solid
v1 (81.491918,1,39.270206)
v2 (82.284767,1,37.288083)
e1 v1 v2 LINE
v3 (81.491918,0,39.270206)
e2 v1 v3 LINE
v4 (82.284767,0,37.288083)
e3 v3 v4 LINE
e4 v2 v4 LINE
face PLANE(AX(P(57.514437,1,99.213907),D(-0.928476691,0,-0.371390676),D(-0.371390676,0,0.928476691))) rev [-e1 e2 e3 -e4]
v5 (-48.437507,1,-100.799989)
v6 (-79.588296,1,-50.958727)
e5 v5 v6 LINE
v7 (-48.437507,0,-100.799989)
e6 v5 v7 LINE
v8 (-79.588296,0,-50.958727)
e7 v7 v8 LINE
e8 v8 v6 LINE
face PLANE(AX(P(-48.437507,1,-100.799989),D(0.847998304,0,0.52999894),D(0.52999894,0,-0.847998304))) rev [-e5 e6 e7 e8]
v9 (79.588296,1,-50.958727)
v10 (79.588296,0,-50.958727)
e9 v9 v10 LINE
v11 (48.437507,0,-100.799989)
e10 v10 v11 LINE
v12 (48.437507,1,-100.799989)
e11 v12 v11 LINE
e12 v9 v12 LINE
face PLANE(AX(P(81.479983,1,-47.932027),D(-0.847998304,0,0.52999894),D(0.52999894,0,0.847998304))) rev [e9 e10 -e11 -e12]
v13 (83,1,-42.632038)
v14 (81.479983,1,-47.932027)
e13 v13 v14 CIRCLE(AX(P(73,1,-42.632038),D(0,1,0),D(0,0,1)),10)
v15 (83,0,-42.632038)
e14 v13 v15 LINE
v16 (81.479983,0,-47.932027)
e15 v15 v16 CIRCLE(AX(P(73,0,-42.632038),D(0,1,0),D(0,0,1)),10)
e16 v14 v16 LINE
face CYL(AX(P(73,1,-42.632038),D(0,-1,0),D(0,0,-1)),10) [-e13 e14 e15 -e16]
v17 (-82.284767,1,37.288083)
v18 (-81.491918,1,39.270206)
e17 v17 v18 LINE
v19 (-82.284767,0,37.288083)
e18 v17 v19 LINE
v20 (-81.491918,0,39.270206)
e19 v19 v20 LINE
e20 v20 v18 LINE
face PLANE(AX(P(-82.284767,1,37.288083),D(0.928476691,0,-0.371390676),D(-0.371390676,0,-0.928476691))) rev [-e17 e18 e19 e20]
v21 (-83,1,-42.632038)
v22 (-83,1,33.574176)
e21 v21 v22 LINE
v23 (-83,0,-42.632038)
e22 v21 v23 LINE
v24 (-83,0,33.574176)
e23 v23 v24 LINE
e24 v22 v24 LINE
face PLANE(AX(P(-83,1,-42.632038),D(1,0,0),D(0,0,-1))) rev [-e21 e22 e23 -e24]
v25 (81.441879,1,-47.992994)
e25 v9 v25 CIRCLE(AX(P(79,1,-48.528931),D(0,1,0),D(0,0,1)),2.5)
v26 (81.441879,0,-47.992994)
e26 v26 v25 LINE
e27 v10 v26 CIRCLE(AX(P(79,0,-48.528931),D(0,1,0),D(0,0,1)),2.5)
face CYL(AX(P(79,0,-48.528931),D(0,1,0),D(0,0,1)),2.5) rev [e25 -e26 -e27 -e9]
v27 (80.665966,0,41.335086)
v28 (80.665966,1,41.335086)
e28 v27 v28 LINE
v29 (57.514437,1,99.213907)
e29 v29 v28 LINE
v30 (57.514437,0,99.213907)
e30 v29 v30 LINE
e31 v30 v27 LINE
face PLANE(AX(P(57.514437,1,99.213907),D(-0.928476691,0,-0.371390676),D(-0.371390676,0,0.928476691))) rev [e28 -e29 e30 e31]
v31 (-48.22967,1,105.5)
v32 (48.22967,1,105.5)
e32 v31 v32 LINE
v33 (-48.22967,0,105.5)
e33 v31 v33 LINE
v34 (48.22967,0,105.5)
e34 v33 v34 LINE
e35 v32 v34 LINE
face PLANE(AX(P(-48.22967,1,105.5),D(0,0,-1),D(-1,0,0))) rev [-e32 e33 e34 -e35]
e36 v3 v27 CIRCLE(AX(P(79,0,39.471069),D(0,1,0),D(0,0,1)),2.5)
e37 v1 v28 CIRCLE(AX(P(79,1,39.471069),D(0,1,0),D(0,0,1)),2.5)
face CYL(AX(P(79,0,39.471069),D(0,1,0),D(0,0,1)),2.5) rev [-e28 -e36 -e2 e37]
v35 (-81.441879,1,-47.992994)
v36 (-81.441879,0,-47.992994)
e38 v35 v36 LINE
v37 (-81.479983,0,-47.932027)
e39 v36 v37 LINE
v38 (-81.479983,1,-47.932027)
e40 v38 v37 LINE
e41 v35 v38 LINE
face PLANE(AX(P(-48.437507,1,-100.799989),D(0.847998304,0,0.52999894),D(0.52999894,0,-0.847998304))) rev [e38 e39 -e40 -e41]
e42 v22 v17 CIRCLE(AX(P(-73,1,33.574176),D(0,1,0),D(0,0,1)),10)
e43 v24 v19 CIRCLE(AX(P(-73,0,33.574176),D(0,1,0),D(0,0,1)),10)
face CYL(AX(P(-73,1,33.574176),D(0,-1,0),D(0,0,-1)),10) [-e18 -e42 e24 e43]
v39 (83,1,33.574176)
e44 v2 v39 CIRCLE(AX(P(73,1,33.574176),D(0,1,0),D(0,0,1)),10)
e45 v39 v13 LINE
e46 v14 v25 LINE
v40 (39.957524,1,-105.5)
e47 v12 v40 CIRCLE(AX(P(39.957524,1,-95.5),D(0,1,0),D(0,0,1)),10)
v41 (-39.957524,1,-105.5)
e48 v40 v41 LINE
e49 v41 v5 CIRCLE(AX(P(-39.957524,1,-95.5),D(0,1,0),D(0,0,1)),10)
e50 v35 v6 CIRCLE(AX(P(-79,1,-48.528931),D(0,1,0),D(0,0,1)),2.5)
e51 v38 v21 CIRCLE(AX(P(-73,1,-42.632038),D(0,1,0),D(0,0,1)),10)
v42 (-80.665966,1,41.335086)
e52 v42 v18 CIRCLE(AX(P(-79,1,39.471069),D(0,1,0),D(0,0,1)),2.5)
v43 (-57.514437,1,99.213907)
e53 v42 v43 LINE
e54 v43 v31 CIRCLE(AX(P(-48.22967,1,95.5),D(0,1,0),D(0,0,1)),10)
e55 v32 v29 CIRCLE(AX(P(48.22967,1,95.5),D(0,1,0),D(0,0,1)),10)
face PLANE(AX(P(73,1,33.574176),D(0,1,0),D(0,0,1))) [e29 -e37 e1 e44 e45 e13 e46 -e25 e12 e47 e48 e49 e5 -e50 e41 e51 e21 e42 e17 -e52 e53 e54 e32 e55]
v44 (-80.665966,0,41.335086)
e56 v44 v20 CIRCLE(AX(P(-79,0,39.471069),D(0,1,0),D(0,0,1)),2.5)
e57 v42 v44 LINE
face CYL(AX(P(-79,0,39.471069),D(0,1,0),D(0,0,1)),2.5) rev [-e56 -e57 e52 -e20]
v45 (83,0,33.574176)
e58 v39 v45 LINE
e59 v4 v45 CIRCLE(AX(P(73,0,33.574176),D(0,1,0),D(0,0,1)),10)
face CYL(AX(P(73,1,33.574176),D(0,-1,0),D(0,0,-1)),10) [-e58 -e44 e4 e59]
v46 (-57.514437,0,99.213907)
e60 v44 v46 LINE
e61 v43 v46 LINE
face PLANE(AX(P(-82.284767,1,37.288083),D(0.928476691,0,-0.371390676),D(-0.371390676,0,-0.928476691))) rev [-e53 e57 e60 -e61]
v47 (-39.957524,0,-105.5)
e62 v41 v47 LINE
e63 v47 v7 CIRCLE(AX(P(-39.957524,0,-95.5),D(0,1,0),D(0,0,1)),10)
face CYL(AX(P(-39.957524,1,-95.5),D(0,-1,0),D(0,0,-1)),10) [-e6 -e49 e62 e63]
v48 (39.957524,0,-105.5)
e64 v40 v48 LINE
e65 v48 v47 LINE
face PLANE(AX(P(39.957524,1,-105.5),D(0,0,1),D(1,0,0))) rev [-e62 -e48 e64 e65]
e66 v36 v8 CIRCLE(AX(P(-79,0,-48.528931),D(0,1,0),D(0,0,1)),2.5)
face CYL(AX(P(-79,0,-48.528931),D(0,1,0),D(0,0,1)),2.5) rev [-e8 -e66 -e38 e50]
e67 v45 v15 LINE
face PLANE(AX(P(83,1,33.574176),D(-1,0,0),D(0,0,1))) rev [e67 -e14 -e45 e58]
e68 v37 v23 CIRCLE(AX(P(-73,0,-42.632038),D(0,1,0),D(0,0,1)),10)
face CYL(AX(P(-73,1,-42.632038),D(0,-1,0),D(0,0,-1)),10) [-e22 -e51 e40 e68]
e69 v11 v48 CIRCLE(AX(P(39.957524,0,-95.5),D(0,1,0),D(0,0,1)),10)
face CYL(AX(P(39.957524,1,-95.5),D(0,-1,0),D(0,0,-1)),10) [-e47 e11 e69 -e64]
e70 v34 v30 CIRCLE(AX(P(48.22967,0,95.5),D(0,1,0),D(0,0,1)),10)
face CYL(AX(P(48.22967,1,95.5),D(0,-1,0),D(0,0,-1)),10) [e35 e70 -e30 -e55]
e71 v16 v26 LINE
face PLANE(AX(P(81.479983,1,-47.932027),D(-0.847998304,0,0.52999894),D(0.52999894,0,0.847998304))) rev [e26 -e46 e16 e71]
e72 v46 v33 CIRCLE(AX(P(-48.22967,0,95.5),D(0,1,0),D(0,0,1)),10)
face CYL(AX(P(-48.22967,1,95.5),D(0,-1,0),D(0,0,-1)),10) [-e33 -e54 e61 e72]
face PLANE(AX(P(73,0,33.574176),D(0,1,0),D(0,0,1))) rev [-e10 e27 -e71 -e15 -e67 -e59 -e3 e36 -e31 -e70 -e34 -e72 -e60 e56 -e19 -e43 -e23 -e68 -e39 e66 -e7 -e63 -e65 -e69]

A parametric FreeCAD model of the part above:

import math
import FreeCAD as App
import Part
import Sketcher
from FreeCAD import Vector
Q = App.Units.Quantity

doc = App.newDocument("Part")
params = doc.addObject("Spreadsheet::Sheet", "Params")
for row, (alias, value) in enumerate([
    ("sketch1_radius", "10 mm"),
    ("pad1_length", "1 mm"),
    ("sketch2_diameter", "5 mm"),
    ("pocket1_length", "1 mm"),
], start=1):
    params.set(f"A{row}", alias)
    params.set(f"B{row}", "=" + value)
    params.setAlias(f"B{row}", alias)

body = doc.addObject("PartDesign::Body", "Body")

# Sketch on XZ plane
sketch1 = body.newObject("Sketcher::SketchObject", "Sketch")
sketch1.AttachmentSupport = (doc.getObject("XZ_Plane"), [""])
sketch1.MapMode = "FlatFace"
sketch1.addGeometry([
    Part.LineSegment(Vector(83, 33.6, 0), Vector(83, -42.6, 0)),  # 0
    Part.ArcOfCircle(Part.Circle(Vector(73, -42.6, 0), Vector(0, 0, 1), 10), math.radians(-32), math.radians(0)),  # 1
    Part.LineSegment(Vector(81.5, -47.9, 0), Vector(48.4, -100.8, 0)),  # 2
    Part.ArcOfCircle(Part.Circle(Vector(40, -95.5, 0), Vector(0, 0, 1), 10), math.radians(-90), math.radians(-32)),  # 3
    Part.LineSegment(Vector(40, -105.5, 0), Vector(-40, -105.5, 0)),  # 4
    Part.ArcOfCircle(Part.Circle(Vector(-40, -95.5, 0), Vector(0, 0, 1), 10), math.radians(-148), math.radians(-90)),  # 5
    Part.LineSegment(Vector(-48.4, -100.8, 0), Vector(-81.5, -47.9, 0)),  # 6
    Part.ArcOfCircle(Part.Circle(Vector(-73, -42.6, 0), Vector(0, 0, 1), 10), math.radians(180), math.radians(212)),  # 7
    Part.LineSegment(Vector(-83, -42.6, 0), Vector(-83, 33.6, 0)),  # 8
    Part.ArcOfCircle(Part.Circle(Vector(-73, 33.6, 0), Vector(0, 0, 1), 10), math.radians(158), math.radians(180)),  # 9
    Part.LineSegment(Vector(-82.3, 37.3, 0), Vector(-57.5, 99.2, 0)),  # 10
    Part.ArcOfCircle(Part.Circle(Vector(-48.2, 95.5, 0), Vector(0, 0, 1), 10), math.radians(90), math.radians(158)),  # 11
    Part.LineSegment(Vector(-48.2, 105.5, 0), Vector(48.2, 105.5, 0)),  # 12
    Part.ArcOfCircle(Part.Circle(Vector(48.2, 95.5, 0), Vector(0, 0, 1), 10), math.radians(22), math.radians(90)),  # 13
    Part.LineSegment(Vector(57.5, 99.2, 0), Vector(82.3, 37.3, 0)),  # 14
    Part.ArcOfCircle(Part.Circle(Vector(73, 33.6, 0), Vector(0, 0, 1), 10), math.radians(0), math.radians(22)),  # 15
], False)
sketch1.addConstraint([
    Sketcher.Constraint("Tangent", 0, 2, 1, 2),
    Sketcher.Constraint("Tangent", 1, 1, 2, 1),
    Sketcher.Constraint("Tangent", 2, 2, 3, 2),
    Sketcher.Constraint("Tangent", 3, 1, 4, 1),
    Sketcher.Constraint("Tangent", 4, 2, 5, 2),
    Sketcher.Constraint("Tangent", 5, 1, 6, 1),
    Sketcher.Constraint("Tangent", 6, 2, 7, 2),
    Sketcher.Constraint("Tangent", 7, 1, 8, 1),
    Sketcher.Constraint("Tangent", 8, 2, 9, 2),
    Sketcher.Constraint("Tangent", 9, 1, 10, 1),
    Sketcher.Constraint("Tangent", 10, 2, 11, 2),
    Sketcher.Constraint("Tangent", 11, 1, 12, 1),
    Sketcher.Constraint("Tangent", 12, 2, 13, 2),
    Sketcher.Constraint("Tangent", 13, 1, 14, 1),
    Sketcher.Constraint("Tangent", 14, 2, 15, 2),
    Sketcher.Constraint("Tangent", 15, 1, 0, 1),
    Sketcher.Constraint("Vertical", 0),
    Sketcher.Constraint("Horizontal", 4),
    Sketcher.Constraint("Vertical", 8),
    Sketcher.Constraint("Horizontal", 12),
    Sketcher.Constraint("Equal", 1, 3),
    Sketcher.Constraint("Equal", 3, 5),
    Sketcher.Constraint("Equal", 5, 7),
    Sketcher.Constraint("Equal", 7, 9),
    Sketcher.Constraint("Equal", 9, 11),
    Sketcher.Constraint("Equal", 11, 13),
    Sketcher.Constraint("Equal", 13, 15),
    Sketcher.Constraint("Symmetric", 1, 3, 7, 3, -2),
    Sketcher.Constraint("Symmetric", 10, 2, 13, 1, -2),
    Sketcher.Constraint("Horizontal", 2, 2, 5, 1),
    Sketcher.Constraint("Radius", 1, Q("10 mm")),
    Sketcher.Constraint("DistanceX", -1, 1, 1, 3, Q("73 mm")),
    Sketcher.Constraint("DistanceY", 5, 3, 11, 3, Q("191 mm")),
    Sketcher.Constraint("DistanceY", 3, 3, -1, 1, Q("95.5 mm")),
    Sketcher.Constraint("DistanceX", 12, 1, 12, 2, Q("96.459341 mm")),
    Sketcher.Constraint("Distance", 2, Q("62.34442 mm")),
    Sketcher.Constraint("DistanceX", 4, 2, 4, 1, Q("79.915047 mm")),
    Sketcher.Constraint("DistanceY", 0, 2, 0, 1, Q("76.206214 mm")),
])
sketch1.setExpression("Constraints[30]", "Params.sketch1_radius")
pad1 = body.newObject("PartDesign::Pad", "Pad")
pad1.Profile = sketch1
pad1.setExpression("Length", "Params.pad1_length")
pad1.Reversed = True

# Sketch on XZ plane
sketch2 = body.newObject("Sketcher::SketchObject", "Sketch001")
sketch2.AttachmentSupport = (doc.getObject("XZ_Plane"), [""])
sketch2.MapMode = "FlatFace"
sketch2.AttachmentOffset = App.Placement(Vector(0, 0, -1), App.Rotation())
sketch2.addGeometry([
    Part.Circle(Vector(79, -48.5, 0), Vector(0, 0, 1), 2.5),
    Part.Circle(Vector(79, 39.5, 0), Vector(0, 0, 1), 2.5),
    Part.Circle(Vector(-79, -48.5, 0), Vector(0, 0, 1), 2.5),
    Part.Circle(Vector(-79, 39.5, 0), Vector(0, 0, 1), 2.5),
], False)
sketch2.addConstraint([
    Sketcher.Constraint("Equal", 0, 1),
    Sketcher.Constraint("Equal", 1, 2),
    Sketcher.Constraint("Equal", 2, 3),
    Sketcher.Constraint("Symmetric", 0, 3, 2, 3, -2),
    Sketcher.Constraint("Symmetric", 1, 3, 3, 3, -2),
    Sketcher.Constraint("Vertical", 0, 3, 1, 3),
    Sketcher.Constraint("Diameter", 0, Q("5 mm")),
    Sketcher.Constraint("DistanceX", -1, 1, 0, 3, Q("79 mm")),
    Sketcher.Constraint("DistanceY", 0, 3, 1, 3, Q("88 mm")),
    Sketcher.Constraint("DistanceY", 0, 3, -1, 1, Q("48.528931 mm")),
])
sketch2.setExpression("Constraints[6]", "Params.sketch2_diameter")
pocket1 = body.newObject("PartDesign::Pocket", "Pocket")
pocket1.Profile = sketch2
pocket1.setExpression("Length", "Params.pocket1_length")
pocket1.Reversed = True

doc.recompute()
